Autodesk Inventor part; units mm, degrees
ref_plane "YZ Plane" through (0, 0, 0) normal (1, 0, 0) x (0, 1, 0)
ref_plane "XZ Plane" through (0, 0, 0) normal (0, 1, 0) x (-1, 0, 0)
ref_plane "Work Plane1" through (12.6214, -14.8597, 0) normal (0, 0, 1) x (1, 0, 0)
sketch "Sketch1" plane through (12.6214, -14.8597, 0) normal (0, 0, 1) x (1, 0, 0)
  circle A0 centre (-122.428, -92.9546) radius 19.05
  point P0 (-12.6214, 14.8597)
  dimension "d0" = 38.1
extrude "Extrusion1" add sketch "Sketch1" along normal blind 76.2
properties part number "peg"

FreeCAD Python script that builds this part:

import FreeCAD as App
import Part
import Sketcher
Q = App.Units.Quantity

doc = App.newDocument("Part")
body = doc.addObject("PartDesign::Body", "Body")

sketch1 = body.newObject("Sketcher::SketchObject", "Sketch")
sketch1.AttachmentSupport = (doc.getObject("XY_Plane"), [""])
sketch1.MapMode = "FlatFace"
sketch1.addGeometry(Part.Circle(App.Vector(-109.8066, -107.8143, 0), App.Vector(0, 0, 1), 19.05), False)
sketch1.addConstraint([
    Sketcher.Constraint("Diameter", 0, Q("1.5 in")),
    Sketcher.Constraint("DistanceX", 0, 3, -1, 1, Q("4.3231 in")),
    Sketcher.Constraint("DistanceY", 0, 3, -1, 1, 107.8143),
])
pad1 = body.newObject("PartDesign::Pad", "Pad")
pad1.Profile = sketch1
pad1.Length = Q("3 in")

doc.recompute()
